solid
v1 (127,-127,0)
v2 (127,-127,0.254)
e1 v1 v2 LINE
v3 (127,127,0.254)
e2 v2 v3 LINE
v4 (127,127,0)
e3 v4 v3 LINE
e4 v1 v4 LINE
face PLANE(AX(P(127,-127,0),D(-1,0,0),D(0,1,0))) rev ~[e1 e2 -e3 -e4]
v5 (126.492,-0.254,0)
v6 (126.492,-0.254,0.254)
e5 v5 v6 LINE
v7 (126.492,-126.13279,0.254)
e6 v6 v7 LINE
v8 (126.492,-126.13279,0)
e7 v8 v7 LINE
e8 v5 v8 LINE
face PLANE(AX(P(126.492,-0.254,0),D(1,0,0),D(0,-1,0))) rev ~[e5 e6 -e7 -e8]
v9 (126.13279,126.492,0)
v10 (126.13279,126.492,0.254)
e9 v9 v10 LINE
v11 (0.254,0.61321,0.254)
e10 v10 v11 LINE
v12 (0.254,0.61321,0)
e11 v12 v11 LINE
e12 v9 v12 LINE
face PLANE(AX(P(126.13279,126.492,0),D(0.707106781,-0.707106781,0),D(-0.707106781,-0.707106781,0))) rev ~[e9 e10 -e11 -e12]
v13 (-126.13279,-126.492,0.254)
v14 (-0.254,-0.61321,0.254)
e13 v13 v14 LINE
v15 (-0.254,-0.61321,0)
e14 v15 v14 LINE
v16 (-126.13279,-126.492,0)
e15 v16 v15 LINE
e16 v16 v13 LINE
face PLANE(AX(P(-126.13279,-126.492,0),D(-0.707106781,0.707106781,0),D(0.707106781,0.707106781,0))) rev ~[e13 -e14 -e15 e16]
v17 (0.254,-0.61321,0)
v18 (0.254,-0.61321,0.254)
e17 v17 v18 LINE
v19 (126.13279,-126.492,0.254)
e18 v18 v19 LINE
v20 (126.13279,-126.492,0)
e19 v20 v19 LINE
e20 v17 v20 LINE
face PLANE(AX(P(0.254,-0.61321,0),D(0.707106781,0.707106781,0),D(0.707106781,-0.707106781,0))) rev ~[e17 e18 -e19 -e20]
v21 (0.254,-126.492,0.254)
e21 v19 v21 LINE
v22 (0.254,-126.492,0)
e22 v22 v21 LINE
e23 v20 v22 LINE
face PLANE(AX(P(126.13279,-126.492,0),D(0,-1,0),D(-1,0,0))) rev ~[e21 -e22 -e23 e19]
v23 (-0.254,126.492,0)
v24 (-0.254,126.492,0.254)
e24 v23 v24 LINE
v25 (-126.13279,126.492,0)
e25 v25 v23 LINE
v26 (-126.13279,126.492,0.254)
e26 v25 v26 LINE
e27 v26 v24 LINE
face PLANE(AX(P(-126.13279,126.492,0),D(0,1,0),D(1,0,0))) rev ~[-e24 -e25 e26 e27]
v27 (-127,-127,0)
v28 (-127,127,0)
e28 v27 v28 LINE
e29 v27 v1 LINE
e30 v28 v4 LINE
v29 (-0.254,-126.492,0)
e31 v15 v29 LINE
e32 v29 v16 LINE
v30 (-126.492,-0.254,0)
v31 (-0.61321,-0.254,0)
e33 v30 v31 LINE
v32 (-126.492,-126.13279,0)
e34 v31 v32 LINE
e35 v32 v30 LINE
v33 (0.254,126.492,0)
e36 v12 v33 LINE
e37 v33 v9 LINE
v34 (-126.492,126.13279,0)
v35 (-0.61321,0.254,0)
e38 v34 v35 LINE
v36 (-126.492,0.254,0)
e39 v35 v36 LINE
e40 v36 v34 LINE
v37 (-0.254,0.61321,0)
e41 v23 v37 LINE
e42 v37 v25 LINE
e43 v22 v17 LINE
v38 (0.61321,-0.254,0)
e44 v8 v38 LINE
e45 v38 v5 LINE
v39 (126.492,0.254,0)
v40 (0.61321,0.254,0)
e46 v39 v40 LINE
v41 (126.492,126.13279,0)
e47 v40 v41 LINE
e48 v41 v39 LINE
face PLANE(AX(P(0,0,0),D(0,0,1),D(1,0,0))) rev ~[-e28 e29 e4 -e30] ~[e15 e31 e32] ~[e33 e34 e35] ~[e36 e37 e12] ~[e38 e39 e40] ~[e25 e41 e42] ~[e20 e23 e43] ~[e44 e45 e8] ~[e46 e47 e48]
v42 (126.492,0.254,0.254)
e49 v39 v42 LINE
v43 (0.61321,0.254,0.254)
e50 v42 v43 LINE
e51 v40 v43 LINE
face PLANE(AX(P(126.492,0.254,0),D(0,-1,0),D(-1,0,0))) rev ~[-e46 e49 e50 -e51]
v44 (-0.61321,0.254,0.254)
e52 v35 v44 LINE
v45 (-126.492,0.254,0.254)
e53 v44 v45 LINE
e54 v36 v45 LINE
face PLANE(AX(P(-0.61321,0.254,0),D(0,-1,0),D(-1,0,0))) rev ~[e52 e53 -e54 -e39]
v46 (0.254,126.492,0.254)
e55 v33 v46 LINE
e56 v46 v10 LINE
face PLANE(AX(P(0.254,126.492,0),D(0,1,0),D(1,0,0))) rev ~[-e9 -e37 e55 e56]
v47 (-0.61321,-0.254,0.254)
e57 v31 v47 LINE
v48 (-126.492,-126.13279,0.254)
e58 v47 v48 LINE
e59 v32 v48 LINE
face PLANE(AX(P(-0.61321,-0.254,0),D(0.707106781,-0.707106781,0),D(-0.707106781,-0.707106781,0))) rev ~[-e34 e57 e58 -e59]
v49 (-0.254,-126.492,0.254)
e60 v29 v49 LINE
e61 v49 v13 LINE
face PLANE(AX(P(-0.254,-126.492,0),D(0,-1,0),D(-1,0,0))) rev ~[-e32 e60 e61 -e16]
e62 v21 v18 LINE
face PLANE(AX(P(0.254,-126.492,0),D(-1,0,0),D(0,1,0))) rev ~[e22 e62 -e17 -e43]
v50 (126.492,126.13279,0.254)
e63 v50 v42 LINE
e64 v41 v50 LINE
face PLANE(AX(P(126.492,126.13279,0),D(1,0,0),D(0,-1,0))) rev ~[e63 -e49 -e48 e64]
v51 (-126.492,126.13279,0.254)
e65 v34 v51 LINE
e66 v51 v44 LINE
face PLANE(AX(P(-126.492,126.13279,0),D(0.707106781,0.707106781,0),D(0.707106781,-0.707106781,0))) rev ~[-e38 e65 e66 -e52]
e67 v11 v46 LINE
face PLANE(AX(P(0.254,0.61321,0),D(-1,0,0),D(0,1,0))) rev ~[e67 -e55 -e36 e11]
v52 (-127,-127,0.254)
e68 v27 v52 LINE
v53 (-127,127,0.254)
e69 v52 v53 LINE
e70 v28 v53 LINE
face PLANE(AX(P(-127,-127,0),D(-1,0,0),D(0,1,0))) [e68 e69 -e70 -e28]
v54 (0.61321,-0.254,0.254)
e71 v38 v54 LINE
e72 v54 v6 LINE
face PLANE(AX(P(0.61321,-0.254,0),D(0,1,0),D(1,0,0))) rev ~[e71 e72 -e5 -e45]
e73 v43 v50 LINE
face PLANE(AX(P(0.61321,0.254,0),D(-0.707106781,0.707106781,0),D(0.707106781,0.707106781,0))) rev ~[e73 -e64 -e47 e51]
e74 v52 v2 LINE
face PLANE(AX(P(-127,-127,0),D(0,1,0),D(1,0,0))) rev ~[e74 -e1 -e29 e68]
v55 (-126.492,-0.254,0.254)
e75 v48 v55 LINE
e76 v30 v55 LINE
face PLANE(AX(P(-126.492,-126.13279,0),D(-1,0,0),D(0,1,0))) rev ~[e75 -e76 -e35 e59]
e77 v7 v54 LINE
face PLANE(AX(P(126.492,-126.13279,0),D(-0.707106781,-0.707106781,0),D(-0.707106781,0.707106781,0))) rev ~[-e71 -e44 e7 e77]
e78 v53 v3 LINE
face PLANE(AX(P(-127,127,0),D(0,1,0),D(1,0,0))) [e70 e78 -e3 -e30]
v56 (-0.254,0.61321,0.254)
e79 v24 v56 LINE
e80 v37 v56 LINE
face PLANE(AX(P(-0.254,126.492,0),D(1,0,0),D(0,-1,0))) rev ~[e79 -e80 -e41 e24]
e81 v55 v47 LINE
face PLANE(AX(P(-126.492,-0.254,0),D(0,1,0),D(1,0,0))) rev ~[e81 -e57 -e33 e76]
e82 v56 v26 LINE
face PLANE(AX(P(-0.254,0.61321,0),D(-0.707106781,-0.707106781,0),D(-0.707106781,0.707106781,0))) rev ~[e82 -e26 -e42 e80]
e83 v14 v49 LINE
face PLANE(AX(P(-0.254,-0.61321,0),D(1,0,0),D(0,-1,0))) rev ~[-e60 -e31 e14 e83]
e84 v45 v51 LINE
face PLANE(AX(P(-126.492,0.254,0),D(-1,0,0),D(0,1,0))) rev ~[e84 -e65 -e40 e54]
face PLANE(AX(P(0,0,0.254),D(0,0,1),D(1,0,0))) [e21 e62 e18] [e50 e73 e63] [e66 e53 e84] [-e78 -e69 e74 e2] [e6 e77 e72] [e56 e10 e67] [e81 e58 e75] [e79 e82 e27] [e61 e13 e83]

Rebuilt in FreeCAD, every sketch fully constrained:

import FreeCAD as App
import Part
import Sketcher

V = App.Vector
Q = App.Units.Quantity


def add_polygon(sketch, points):
    """Adds a closed chain of lines whose ends are joined by coincident constraints."""
    first, n = sketch.GeometryCount, len(points)
    for a, b in zip(points, points[1:] + points[:1]):
        sketch.addGeometry(Part.LineSegment(App.Vector(*a, 0), App.Vector(*b, 0)), False)
    for i in range(n):
        sketch.addConstraint(Sketcher.Constraint("Coincident", first + i, 2, first + (i + 1) % n, 1))

doc = App.newDocument("Part")
body = doc.addObject("PartDesign::Body", "Body")

sketch1 = body.newObject("Sketcher::SketchObject", "Sketch")
sketch1.AttachmentSupport = (doc.getObject("XY_Plane"), [""])
sketch1.MapMode = "FlatFace"
add_polygon(sketch1, [(-127, 127), (-127, -127), (127, -127), (127, 127)])
add_polygon(sketch1, [(-0.254, -0.61321), (-0.254, -126.492), (-126.13279, -126.492)])
add_polygon(sketch1, [(-126.492, -0.254), (-0.61321, -0.254), (-126.492, -126.13279)])
add_polygon(sketch1, [(0.254, -0.61321), (126.13279, -126.492), (0.254, -126.492)])
add_polygon(sketch1, [(0.61321, -0.254), (126.492, -0.254), (126.492, -126.13279)])
add_polygon(sketch1, [(-0.61321, 0.254), (-126.492, 0.254), (-126.492, 126.13279)])
add_polygon(sketch1, [(-0.254, 126.492), (-0.254, 0.61321), (-126.13279, 126.492)])
add_polygon(sketch1, [(126.492, 0.254), (0.61321, 0.254), (126.492, 126.13279)])
add_polygon(sketch1, [(126.13279, 126.492), (0.254, 0.61321), (0.254, 126.492)])
sketch1.addConstraint([
    Sketcher.Constraint("Vertical", 0),
    Sketcher.Constraint("Horizontal", 1),
    Sketcher.Constraint("Vertical", 2),
    Sketcher.Constraint("Horizontal", 3),
    Sketcher.Constraint("Vertical", 4),
    Sketcher.Constraint("Horizontal", 5),
    Sketcher.Constraint("Horizontal", 7),
    Sketcher.Constraint("Vertical", 9),
    Sketcher.Constraint("Horizontal", 11),
    Sketcher.Constraint("Vertical", 12),
    Sketcher.Constraint("Horizontal", 13),
    Sketcher.Constraint("Vertical", 14),
    Sketcher.Constraint("Horizontal", 16),
    Sketcher.Constraint("Vertical", 17),
    Sketcher.Constraint("Vertical", 19),
    Sketcher.Constraint("Horizontal", 21),
    Sketcher.Constraint("Horizontal", 22),
    Sketcher.Constraint("Vertical", 24),
    Sketcher.Constraint("Vertical", 26),
    Sketcher.Constraint("Horizontal", 27),
    Sketcher.Constraint("Symmetric", 0, 2, 2, 2, -1, 1),
    Sketcher.Constraint("Symmetric", 13, 2, 16, 2, -1, 1),
    Sketcher.Constraint("Symmetric", 12, 2, 19, 2, -1, 1),
    Sketcher.Constraint("Symmetric", 10, 2, 20, 2, -1, 1),
    Sketcher.Constraint("Symmetric", 7, 2, 22, 2, -1, 1),
    Sketcher.Constraint("Symmetric", 8, 2, 23, 2, -1, 1),
    Sketcher.Constraint("Symmetric", 6, 2, 25, 2, -1, 1),
    Sketcher.Constraint("Symmetric", 5, 2, 27, 2, -1, 1),
    Sketcher.Constraint("Symmetric", 5, 2, 10, 2, -2),
    Sketcher.Constraint("Symmetric", 6, 2, 12, 2, -2),
    Sketcher.Constraint("Symmetric", 9, 2, 13, 2, -2),
    Sketcher.Constraint("Parallel", 6, 8),
    Sketcher.Constraint("Perpendicular", 8, 10),
    Sketcher.Constraint("Parallel", 10, 15),
    Sketcher.Constraint("Parallel", 15, 18),
    Sketcher.Constraint("Horizontal", 8, 2, 14, 2),
    Sketcher.Constraint("Horizontal", 17, 2, 23, 2),
    Sketcher.Constraint("Equal", 5, 7),
    Sketcher.Constraint("Equal", 3, 0),
    Sketcher.Constraint("DistanceX", 1, 1, 1, 2, Q("10 in")),
    Sketcher.Constraint("DistanceX", 4, 2, -1, 1, Q("0.01 in")),
    Sketcher.Constraint("DistanceY", 4, 2, -1, 1, Q("4.98 in")),
    Sketcher.Constraint("DistanceY", 7, 2, -1, 1, Q("0.01 in")),
    Sketcher.Constraint("DistanceX", 8, 2, -1, 1, Q("4.98 in")),
    Sketcher.Constraint("DistanceX", 5, 2, 5, 1, 125.87879),
])
pad1 = body.newObject("PartDesign::Pad", "Pad")
pad1.Profile = sketch1
pad1.Length = Q("0.01 in")

doc.recompute()
